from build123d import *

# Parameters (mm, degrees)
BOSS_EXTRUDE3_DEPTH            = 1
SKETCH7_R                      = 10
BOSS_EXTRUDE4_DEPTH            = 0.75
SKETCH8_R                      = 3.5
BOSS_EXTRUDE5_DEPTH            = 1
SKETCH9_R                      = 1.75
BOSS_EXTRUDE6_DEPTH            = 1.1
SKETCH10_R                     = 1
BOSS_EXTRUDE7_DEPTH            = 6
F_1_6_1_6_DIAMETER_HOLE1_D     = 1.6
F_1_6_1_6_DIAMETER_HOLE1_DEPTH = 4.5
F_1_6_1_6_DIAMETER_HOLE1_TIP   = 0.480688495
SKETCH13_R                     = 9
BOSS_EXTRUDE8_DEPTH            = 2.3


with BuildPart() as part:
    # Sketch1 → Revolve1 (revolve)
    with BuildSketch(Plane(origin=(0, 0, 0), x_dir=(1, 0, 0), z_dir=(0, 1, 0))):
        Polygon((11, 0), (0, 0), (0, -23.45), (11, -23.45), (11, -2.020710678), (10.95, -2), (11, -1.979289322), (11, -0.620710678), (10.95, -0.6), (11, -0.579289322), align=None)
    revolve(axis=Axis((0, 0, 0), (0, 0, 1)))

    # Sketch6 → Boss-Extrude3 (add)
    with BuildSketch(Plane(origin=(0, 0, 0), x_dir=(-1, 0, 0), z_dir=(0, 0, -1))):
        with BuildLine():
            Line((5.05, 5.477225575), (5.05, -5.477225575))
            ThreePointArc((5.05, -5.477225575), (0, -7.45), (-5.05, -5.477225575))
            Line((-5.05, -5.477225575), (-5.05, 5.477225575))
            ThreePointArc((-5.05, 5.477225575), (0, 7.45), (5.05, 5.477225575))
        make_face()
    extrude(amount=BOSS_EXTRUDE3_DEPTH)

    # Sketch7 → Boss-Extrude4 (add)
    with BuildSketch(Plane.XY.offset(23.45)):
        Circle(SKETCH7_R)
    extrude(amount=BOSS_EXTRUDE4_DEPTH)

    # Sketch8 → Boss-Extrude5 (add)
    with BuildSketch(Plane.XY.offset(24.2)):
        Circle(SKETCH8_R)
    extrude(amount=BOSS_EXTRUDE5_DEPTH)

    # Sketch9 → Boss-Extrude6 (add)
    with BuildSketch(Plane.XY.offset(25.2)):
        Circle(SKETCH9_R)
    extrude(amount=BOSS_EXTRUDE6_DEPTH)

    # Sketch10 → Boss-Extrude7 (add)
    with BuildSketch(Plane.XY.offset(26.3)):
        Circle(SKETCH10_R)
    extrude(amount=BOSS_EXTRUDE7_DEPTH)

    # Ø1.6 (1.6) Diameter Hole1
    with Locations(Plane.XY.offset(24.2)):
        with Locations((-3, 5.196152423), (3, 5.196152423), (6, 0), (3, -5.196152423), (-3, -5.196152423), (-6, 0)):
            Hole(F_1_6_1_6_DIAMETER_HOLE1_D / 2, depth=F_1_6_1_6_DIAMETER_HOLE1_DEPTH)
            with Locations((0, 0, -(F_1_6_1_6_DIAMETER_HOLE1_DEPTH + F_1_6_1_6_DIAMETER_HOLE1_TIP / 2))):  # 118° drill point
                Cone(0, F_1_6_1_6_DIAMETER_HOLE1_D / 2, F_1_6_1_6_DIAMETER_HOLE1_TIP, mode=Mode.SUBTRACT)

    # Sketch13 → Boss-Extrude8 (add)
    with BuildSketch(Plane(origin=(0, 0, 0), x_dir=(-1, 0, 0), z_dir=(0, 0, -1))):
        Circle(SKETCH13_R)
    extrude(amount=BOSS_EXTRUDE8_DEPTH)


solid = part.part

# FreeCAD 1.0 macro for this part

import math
import FreeCAD as App
import Part
import Sketcher
from FreeCAD import Vector
Q = App.Units.Quantity

doc = App.newDocument("Part")
body = doc.addObject("PartDesign::Body", "Body")

# Sketch on XZ plane
sketch1 = body.newObject("Sketcher::SketchObject", "Sketch")
sketch1.AttachmentSupport = (doc.getObject("XZ_Plane"), [""])
sketch1.MapMode = "FlatFace"
sketch1.addGeometry(Part.LineSegment(Vector(11, 0, 0), Vector(0, 0, 0)), False)
sketch1.addGeometry(Part.LineSegment(Vector(0, 0, 0), Vector(0, 23.45, 0)), False)
sketch1.addGeometry(Part.LineSegment(Vector(0, 23.45, 0), Vector(11, 23.45, 0)), False)
sketch1.addGeometry(Part.LineSegment(Vector(11, 23.45, 0), Vector(11, 2.02, 0)), False)
sketch1.addGeometry(Part.LineSegment(Vector(11, 2.02, 0), Vector(10.95, 2, 0)), False)
sketch1.addGeometry(Part.LineSegment(Vector(10.95, 2, 0), Vector(11, 1.98, 0)), False)
sketch1.addGeometry(Part.LineSegment(Vector(11, 1.98, 0), Vector(11, 0.62, 0)), False)
sketch1.addGeometry(Part.LineSegment(Vector(11, 0.62, 0), Vector(10.95, 0.6, 0)), False)
sketch1.addGeometry(Part.LineSegment(Vector(10.95, 0.6, 0), Vector(11, 0.58, 0)), False)
sketch1.addGeometry(Part.LineSegment(Vector(11, 0.58, 0), Vector(11, 0, 0)), False)
sketch1.addConstraint(Sketcher.Constraint("Coincident", 0, 2, 1, 1))
sketch1.addConstraint(Sketcher.Constraint("Coincident", 1, 2, 2, 1))
sketch1.addConstraint(Sketcher.Constraint("Coincident", 2, 2, 3, 1))
sketch1.addConstraint(Sketcher.Constraint("Coincident", 3, 2, 4, 1))
sketch1.addConstraint(Sketcher.Constraint("Coincident", 4, 2, 5, 1))
sketch1.addConstraint(Sketcher.Constraint("Coincident", 5, 2, 6, 1))
sketch1.addConstraint(Sketcher.Constraint("Coincident", 6, 2, 7, 1))
sketch1.addConstraint(Sketcher.Constraint("Coincident", 7, 2, 8, 1))
sketch1.addConstraint(Sketcher.Constraint("Coincident", 8, 2, 9, 1))
sketch1.addConstraint(Sketcher.Constraint("Coincident", 9, 2, 0, 1))
sketch1.addConstraint(Sketcher.Constraint("Horizontal", 0))
sketch1.addConstraint(Sketcher.Constraint("Vertical", 1))
sketch1.addConstraint(Sketcher.Constraint("Horizontal", 2))
sketch1.addConstraint(Sketcher.Constraint("Vertical", 3))
sketch1.addConstraint(Sketcher.Constraint("Vertical", 6))
sketch1.addConstraint(Sketcher.Constraint("Vertical", 9))
sketch1.addConstraint(Sketcher.Constraint("Coincident", 0, 2, -1, 1))
sketch1.addConstraint(Sketcher.Constraint("Parallel", 4, 7))
sketch1.addConstraint(Sketcher.Constraint("Parallel", 5, 8))
sketch1.addConstraint(Sketcher.Constraint("Vertical", 3, 2, 5, 2))
sketch1.addConstraint(Sketcher.Constraint("Vertical", 4, 2, 7, 2))
sketch1.addConstraint(Sketcher.Constraint("Vertical", 6, 2, 8, 2))
sketch1.addConstraint(Sketcher.Constraint("Equal", 4, 5))
sketch1.addConstraint(Sketcher.Constraint("DistanceX", 0, 2, 0, 1, 11.0))
sketch1.addConstraint(Sketcher.Constraint("DistanceY", -1, 1, 4, 2, 2.0))
sketch1.addConstraint(Sketcher.Constraint("Angle", 4, Q("-157.5 deg")))
sketch1.addConstraint(Sketcher.Constraint("DistanceY", 1, 1, 1, 2, 23.45))
sketch1.addConstraint(Sketcher.Constraint("DistanceY", -1, 1, 7, 2, 0.6))
sketch1.addConstraint(Sketcher.Constraint("DistanceX", -1, 1, 4, 2, 10.95))
revolution = body.newObject("PartDesign::Revolution", "Revolution")
revolution.Profile = sketch1
revolution.ReferenceAxis = (sketch1, ["V_Axis"])
revolution.Angle = 360

# Sketch on XY plane
sketch2 = body.newObject("Sketcher::SketchObject", "Sketch001")
sketch2.AttachmentSupport = (doc.getObject("XY_Plane"), [""])
sketch2.MapMode = "FlatFace"
sketch2.addGeometry(Part.LineSegment(Vector(-5, -5, 0), Vector(-5, 5, 0)), False)
sketch2.addGeometry(Part.ArcOfCircle(Part.Circle(Vector(0, 0, 0), Vector(0, 0, 1), 7), math.radians(47), math.radians(133)), False)
sketch2.addGeometry(Part.LineSegment(Vector(5, 5, 0), Vector(5, -5, 0)), False)
sketch2.addGeometry(Part.ArcOfCircle(Part.Circle(Vector(0, 0, 0), Vector(0, 0, 1), 7), math.radians(-133), math.radians(-47)), False)
sketch2.addConstraint(Sketcher.Constraint("Coincident", 0, 2, 1, 2))
sketch2.addConstraint(Sketcher.Constraint("Coincident", 1, 1, 2, 1))
sketch2.addConstraint(Sketcher.Constraint("Coincident", 2, 2, 3, 2))
sketch2.addConstraint(Sketcher.Constraint("Coincident", 3, 1, 0, 1))
sketch2.addConstraint(Sketcher.Constraint("Vertical", 0))
sketch2.addConstraint(Sketcher.Constraint("Vertical", 2))
sketch2.addConstraint(Sketcher.Constraint("Coincident", 1, 3, -1, 1))
sketch2.addConstraint(Sketcher.Constraint("Coincident", 3, 3, -1, 1))
sketch2.addConstraint(Sketcher.Constraint("Equal", 1, 3))
sketch2.addConstraint(Sketcher.Constraint("Horizontal", 0, 2, 1, 1))
sketch2.addConstraint(Sketcher.Constraint("Radius", 1, 7.45))
sketch2.addConstraint(Sketcher.Constraint("DistanceX", 0, 2, 1, 1, 10.1))
pad1 = body.newObject("PartDesign::Pad", "Pad")
pad1.Profile = sketch2
pad1.Length = 1
pad1.Reversed = True

# Sketch on XY plane
sketch3 = body.newObject("Sketcher::SketchObject", "Sketch002")
sketch3.AttachmentSupport = (doc.getObject("XY_Plane"), [""])
sketch3.MapMode = "FlatFace"
sketch3.AttachmentOffset = App.Placement(Vector(0, 0, 23.45), App.Rotation())
sketch3.addGeometry(Part.Circle(Vector(0, 0, 0), Vector(0, 0, 1), 10), False)
sketch3.addConstraint(Sketcher.Constraint("Coincident", 0, 3, -1, 1))
sketch3.addConstraint(Sketcher.Constraint("Diameter", 0, 20.0))
pad2 = body.newObject("PartDesign::Pad", "Pad001")
pad2.Profile = sketch3
pad2.Length = 0.75

# Sketch on XY plane
sketch4 = body.newObject("Sketcher::SketchObject", "Sketch003")
sketch4.AttachmentSupport = (doc.getObject("XY_Plane"), [""])
sketch4.MapMode = "FlatFace"
sketch4.AttachmentOffset = App.Placement(Vector(0, 0, 24.2), App.Rotation())
sketch4.addGeometry(Part.Circle(Vector(0, 0, 0), Vector(0, 0, 1), 3.5), False)
sketch4.addConstraint(Sketcher.Constraint("Coincident", 0, 3, -1, 1))
sketch4.addConstraint(Sketcher.Constraint("Diameter", 0, 7.0))
pad3 = body.newObject("PartDesign::Pad", "Pad002")
pad3.Profile = sketch4
pad3.Length = 1

# Sketch on XY plane
sketch5 = body.newObject("Sketcher::SketchObject", "Sketch004")
sketch5.AttachmentSupport = (doc.getObject("XY_Plane"), [""])
sketch5.MapMode = "FlatFace"
sketch5.AttachmentOffset = App.Placement(Vector(0, 0, 25.2), App.Rotation())
sketch5.addGeometry(Part.Circle(Vector(0, 0, 0), Vector(0, 0, 1), 1.8), False)
sketch5.addConstraint(Sketcher.Constraint("Coincident", 0, 3, -1, 1))
sketch5.addConstraint(Sketcher.Constraint("Diameter", 0, 3.5))
pad4 = body.newObject("PartDesign::Pad", "Pad003")
pad4.Profile = sketch5
pad4.Length = 1.1

# Sketch on XY plane
sketch6 = body.newObject("Sketcher::SketchObject", "Sketch005")
sketch6.AttachmentSupport = (doc.getObject("XY_Plane"), [""])
sketch6.MapMode = "FlatFace"
sketch6.AttachmentOffset = App.Placement(Vector(0, 0, 26.3), App.Rotation())
sketch6.addGeometry(Part.Circle(Vector(0, 0, 0), Vector(0, 0, 1), 1), False)
sketch6.addConstraint(Sketcher.Constraint("Coincident", 0, 3, -1, 1))
sketch6.addConstraint(Sketcher.Constraint("Diameter", 0, 2.0))
pad5 = body.newObject("PartDesign::Pad", "Pad004")
pad5.Profile = sketch6
pad5.Length = 6

# Sketch on XY plane
sketch7 = body.newObject("Sketcher::SketchObject", "Sketch006")
sketch7.AttachmentSupport = (doc.getObject("XY_Plane"), [""])
sketch7.MapMode = "FlatFace"
sketch7.AttachmentOffset = App.Placement(Vector(0, 0, 24.2), App.Rotation())
sketch7.addGeometry(Part.Circle(Vector(-3, 5.2, 0), Vector(0, 0, 1), 0.8), False)
sketch7.addGeometry(Part.Circle(Vector(3, 5.2, 0), Vector(0, 0, 1), 0.8), False)
sketch7.addGeometry(Part.Circle(Vector(6, 0, 0), Vector(0, 0, 1), 0.8), False)
sketch7.addGeometry(Part.Circle(Vector(3, -5.2, 0), Vector(0, 0, 1), 0.8), False)
sketch7.addGeometry(Part.Circle(Vector(-3, -5.2, 0), Vector(0, 0, 1), 0.8), False)
sketch7.addGeometry(Part.Circle(Vector(-6, 0, 0), Vector(0, 0, 1), 0.8), False)
sketch7.addConstraint(Sketcher.Constraint("Equal", 0, 1))
sketch7.addConstraint(Sketcher.Constraint("Equal", 1, 2))
sketch7.addConstraint(Sketcher.Constraint("Equal", 2, 3))
sketch7.addConstraint(Sketcher.Constraint("Equal", 3, 4))
sketch7.addConstraint(Sketcher.Constraint("Equal", 4, 5))
sketch7.addConstraint(Sketcher.Constraint("Symmetric", 0, 3, 3, 3, -1, 1))
sketch7.addConstraint(Sketcher.Constraint("Symmetric", 1, 3, 4, 3, -1, 1))
sketch7.addConstraint(Sketcher.Constraint("Symmetric", 2, 3, 5, 3, -1, 1))
sketch7.addConstraint(Sketcher.Constraint("Symmetric", 0, 3, 1, 3, -2))
sketch7.addConstraint(Sketcher.Constraint("PointOnObject", 2, 3, -1))
sketch7.addConstraint(Sketcher.Constraint("Diameter", 0, 1.6))
sketch7.addConstraint(Sketcher.Constraint("DistanceX", 0, 3, -1, 1, 3.0))
sketch7.addConstraint(Sketcher.Constraint("DistanceX", -1, 1, 2, 3, 6.0))
sketch7.addConstraint(Sketcher.Constraint("DistanceY", -1, 1, 0, 3, 5.196152))
doc.recompute()
hole = body.newObject("PartDesign::Hole", "Hole")
hole.Profile = sketch7
hole.ThreadType = "None"
hole.Diameter = 1.6
hole.DepthType = "Dimension"
hole.Depth = 4.5
hole.DrillPoint = "Angled"
hole.DrillPointAngle = 118

# Sketch on XY plane
sketch8 = body.newObject("Sketcher::SketchObject", "Sketch007")
sketch8.AttachmentSupport = (doc.getObject("XY_Plane"), [""])
sketch8.MapMode = "FlatFace"
sketch8.addGeometry(Part.Circle(Vector(0, 0, 0), Vector(0, 0, 1), 9), False)
sketch8.addConstraint(Sketcher.Constraint("Coincident", 0, 3, -1, 1))
sketch8.addConstraint(Sketcher.Constraint("Diameter", 0, 18.0))
pad6 = body.newObject("PartDesign::Pad", "Pad005")
pad6.Profile = sketch8
pad6.Length = 2.3
pad6.Reversed = True

doc.recompute()
